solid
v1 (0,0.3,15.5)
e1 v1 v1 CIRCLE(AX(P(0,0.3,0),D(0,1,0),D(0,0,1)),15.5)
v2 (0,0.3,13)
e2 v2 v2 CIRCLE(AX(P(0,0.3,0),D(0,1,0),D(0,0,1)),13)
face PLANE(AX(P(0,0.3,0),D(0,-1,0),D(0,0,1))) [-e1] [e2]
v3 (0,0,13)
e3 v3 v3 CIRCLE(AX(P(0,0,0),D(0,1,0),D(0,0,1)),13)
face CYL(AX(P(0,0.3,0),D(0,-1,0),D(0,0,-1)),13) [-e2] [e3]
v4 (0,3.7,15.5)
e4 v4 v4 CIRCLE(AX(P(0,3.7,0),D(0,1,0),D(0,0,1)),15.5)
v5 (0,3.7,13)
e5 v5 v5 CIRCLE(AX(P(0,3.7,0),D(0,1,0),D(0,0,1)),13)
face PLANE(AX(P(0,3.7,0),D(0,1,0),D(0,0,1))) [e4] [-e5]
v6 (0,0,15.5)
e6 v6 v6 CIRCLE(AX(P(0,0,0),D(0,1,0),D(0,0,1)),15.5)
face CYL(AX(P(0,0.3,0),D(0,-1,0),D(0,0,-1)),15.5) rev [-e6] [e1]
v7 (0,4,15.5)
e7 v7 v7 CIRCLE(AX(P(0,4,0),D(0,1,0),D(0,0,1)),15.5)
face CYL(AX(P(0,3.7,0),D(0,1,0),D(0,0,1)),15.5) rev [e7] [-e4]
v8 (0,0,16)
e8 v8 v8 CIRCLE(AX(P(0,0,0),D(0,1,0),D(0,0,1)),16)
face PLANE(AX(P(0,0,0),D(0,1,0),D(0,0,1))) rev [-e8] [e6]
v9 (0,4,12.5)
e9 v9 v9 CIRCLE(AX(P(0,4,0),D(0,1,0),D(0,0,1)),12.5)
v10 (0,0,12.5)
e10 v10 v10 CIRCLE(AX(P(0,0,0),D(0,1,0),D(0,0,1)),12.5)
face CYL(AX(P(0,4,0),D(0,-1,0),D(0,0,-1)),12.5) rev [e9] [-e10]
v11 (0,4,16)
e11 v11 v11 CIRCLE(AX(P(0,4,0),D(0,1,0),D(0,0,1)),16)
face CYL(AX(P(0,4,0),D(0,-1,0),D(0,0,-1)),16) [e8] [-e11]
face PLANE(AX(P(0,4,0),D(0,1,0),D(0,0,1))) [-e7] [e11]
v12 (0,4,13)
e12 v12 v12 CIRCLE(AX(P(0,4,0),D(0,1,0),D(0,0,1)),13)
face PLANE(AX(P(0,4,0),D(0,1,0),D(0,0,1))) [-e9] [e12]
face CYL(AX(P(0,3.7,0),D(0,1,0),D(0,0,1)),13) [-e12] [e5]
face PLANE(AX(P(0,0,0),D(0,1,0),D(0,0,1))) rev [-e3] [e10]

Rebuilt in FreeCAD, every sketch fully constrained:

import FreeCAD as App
import Part
import Sketcher

V = App.Vector
Q = App.Units.Quantity

doc = App.newDocument("Part")
body = doc.addObject("PartDesign::Body", "Body")

# Sketch on XZ plane
sketch1 = doc.addObject("Sketcher::SketchObject", "Sketch")
body.addObject(sketch1)
sketch1.AttachmentSupport = (doc.XZ_Plane, [""])
sketch1.MapMode = "FlatFace"
sketch1.addGeometry(Part.Circle(V(0, 0, 0), V(0, 0, 1), 16), False)
sketch1.addGeometry(Part.Circle(V(0, 0, 0), V(0, 0, 1), 12), False)
sketch1.addConstraint(Sketcher.Constraint("Coincident", 0, 3, -1, 1))
sketch1.addConstraint(Sketcher.Constraint("Coincident", 1, 3, -1, 1))
sketch1.addConstraint(Sketcher.Constraint("Diameter", 0, Q("32 mm")))
sketch1.addConstraint(Sketcher.Constraint("Diameter", 1, Q("25 mm")))
pad1 = doc.addObject("PartDesign::Pad", "Pad")
body.addObject(pad1)
pad1.Profile = sketch1
pad1.Length = 4
pad1.Reversed = True

# Sketch on XZ plane
sketch2 = doc.addObject("Sketcher::SketchObject", "Sketch001")
body.addObject(sketch2)
sketch2.AttachmentSupport = (doc.XZ_Plane, [""])
sketch2.MapMode = "FlatFace"
sketch2.AttachmentOffset = App.Placement(V(0, 0, -4), App.Rotation())
sketch2.addGeometry(Part.Circle(V(0, 0, 0), V(0, 0, 1), 16), False)
sketch2.addGeometry(Part.Circle(V(0, 0, 0), V(0, 0, 1), 13), False)
sketch2.addConstraint(Sketcher.Constraint("Coincident", 0, 3, -1, 1))
sketch2.addConstraint(Sketcher.Constraint("Coincident", 1, 3, -1, 1))
sketch2.addConstraint(Sketcher.Constraint("Diameter", 0, Q("31 mm")))
sketch2.addConstraint(Sketcher.Constraint("Diameter", 1, Q("26 mm")))
pocket1 = doc.addObject("PartDesign::Pocket", "Pocket")
body.addObject(pocket1)
pocket1.Profile = sketch2
pocket1.Length = 0.3
pocket1.Reversed = True
doc.recompute()

datumplane = doc.addObject("PartDesign::Plane", "DatumPlane")
body.addObject(datumplane)
datumplane.AttachmentSupport = (doc.XZ_Plane, [""])
datumplane.MapMode = "FlatFace"
datumplane.AttachmentOffset = App.Placement(V(0, 0, -2), App.Rotation())
mirrored = doc.addObject("PartDesign::Mirrored", "Mirrored")
body.addObject(mirrored)
mirrored.Originals = [pocket1]
mirrored.MirrorPlane = (datumplane, [""])
body.Tip = mirrored

doc.recompute()
